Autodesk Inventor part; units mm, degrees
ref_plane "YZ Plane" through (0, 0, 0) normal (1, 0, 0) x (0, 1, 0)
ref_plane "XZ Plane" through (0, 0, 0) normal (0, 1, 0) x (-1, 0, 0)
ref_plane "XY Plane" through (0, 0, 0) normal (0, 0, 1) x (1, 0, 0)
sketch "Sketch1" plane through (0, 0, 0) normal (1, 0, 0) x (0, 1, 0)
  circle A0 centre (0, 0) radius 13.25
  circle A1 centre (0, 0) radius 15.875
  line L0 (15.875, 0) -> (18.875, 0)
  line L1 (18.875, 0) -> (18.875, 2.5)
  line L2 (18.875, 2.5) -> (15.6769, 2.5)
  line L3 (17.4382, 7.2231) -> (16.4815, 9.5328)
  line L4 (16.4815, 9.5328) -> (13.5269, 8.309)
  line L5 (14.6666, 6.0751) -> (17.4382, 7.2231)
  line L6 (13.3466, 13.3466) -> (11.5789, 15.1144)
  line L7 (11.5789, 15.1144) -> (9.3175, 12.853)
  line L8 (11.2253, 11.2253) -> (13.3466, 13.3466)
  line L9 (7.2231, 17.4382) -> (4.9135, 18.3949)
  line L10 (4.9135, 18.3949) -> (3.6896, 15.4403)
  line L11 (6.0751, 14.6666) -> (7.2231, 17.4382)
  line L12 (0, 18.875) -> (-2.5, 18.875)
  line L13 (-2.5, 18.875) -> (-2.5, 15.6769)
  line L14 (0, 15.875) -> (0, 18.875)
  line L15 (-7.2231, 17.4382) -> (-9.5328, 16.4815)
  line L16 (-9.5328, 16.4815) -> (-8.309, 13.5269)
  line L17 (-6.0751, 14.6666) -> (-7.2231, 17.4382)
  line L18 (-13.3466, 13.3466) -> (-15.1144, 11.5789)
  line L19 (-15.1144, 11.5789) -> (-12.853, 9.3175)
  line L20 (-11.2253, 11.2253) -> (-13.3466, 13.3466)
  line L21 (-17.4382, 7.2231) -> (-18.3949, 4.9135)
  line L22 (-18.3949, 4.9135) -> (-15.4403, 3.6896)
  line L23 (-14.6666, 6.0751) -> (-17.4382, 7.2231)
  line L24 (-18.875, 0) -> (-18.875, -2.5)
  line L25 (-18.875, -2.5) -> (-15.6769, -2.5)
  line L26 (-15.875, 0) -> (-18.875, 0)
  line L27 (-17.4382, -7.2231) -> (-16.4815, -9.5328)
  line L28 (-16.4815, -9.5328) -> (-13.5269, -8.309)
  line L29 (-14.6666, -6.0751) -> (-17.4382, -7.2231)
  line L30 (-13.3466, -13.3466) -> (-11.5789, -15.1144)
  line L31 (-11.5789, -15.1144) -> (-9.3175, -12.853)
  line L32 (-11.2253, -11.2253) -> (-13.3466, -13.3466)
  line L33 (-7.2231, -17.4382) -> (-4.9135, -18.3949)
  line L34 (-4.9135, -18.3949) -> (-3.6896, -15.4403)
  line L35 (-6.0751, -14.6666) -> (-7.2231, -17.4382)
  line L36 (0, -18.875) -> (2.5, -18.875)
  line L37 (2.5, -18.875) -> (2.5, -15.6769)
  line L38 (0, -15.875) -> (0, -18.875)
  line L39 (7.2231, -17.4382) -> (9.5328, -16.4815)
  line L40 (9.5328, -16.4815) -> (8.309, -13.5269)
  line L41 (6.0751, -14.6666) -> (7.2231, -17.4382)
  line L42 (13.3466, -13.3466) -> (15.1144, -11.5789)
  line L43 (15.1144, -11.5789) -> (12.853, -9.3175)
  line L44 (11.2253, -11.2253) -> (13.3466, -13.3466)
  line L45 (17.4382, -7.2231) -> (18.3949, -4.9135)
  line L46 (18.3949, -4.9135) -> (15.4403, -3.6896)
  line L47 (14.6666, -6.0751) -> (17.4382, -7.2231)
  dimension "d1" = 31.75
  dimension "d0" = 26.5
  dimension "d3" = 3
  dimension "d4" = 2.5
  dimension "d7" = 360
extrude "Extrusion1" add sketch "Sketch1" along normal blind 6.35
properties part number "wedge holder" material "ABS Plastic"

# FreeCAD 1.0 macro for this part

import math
import FreeCAD as App
import Part
import Sketcher
Q = App.Units.Quantity

doc = App.newDocument("Part")
body = doc.addObject("PartDesign::Body", "Body")

sketch1 = body.newObject("Sketcher::SketchObject", "Sketch")
sketch1.AttachmentSupport = (doc.getObject("YZ_Plane"), [""])
sketch1.MapMode = "FlatFace"
sketch1.addGeometry([
    Part.ArcOfCircle(Part.Circle(App.Vector(0, 0, 0), App.Vector(0, 0, 1), 15.9), math.radians(-13.44), math.radians(0)),
    Part.LineSegment(App.Vector(15.9, 0, 0), App.Vector(18.9, 0, 0)),
    Part.LineSegment(App.Vector(18.9, 0, 0), App.Vector(18.9, 2.5, 0)),
    Part.LineSegment(App.Vector(18.9, 2.5, 0), App.Vector(15.7, 2.5, 0)),
    Part.ArcOfCircle(Part.Circle(App.Vector(0, 0, 0), App.Vector(0, 0, 1), 15.9), math.radians(9.06), math.radians(22.5)),
    Part.LineSegment(App.Vector(14.7, 6.1, 0), App.Vector(17.4, 7.2, 0)),
    Part.LineSegment(App.Vector(17.4, 7.2, 0), App.Vector(16.5, 9.5, 0)),
    Part.LineSegment(App.Vector(16.5, 9.5, 0), App.Vector(13.5, 8.3, 0)),
    Part.ArcOfCircle(Part.Circle(App.Vector(0, 0, 0), App.Vector(0, 0, 1), 15.9), math.radians(31.56), math.radians(45)),
    Part.LineSegment(App.Vector(11.2, 11.2, 0), App.Vector(13.3, 13.3, 0)),
    Part.LineSegment(App.Vector(13.3, 13.3, 0), App.Vector(11.6, 15.1, 0)),
    Part.LineSegment(App.Vector(11.6, 15.1, 0), App.Vector(9.3, 12.9, 0)),
    Part.ArcOfCircle(Part.Circle(App.Vector(0, 0, 0), App.Vector(0, 0, 1), 15.9), math.radians(54.06), math.radians(67.5)),
    Part.LineSegment(App.Vector(6.1, 14.7, 0), App.Vector(7.2, 17.4, 0)),
    Part.LineSegment(App.Vector(7.2, 17.4, 0), App.Vector(4.9, 18.4, 0)),
    Part.LineSegment(App.Vector(4.9, 18.4, 0), App.Vector(3.7, 15.4, 0)),
    Part.ArcOfCircle(Part.Circle(App.Vector(0, 0, 0), App.Vector(0, 0, 1), 15.9), math.radians(76.56), math.radians(90)),
    Part.LineSegment(App.Vector(0, 15.9, 0), App.Vector(0, 18.9, 0)),
    Part.LineSegment(App.Vector(0, 18.9, 0), App.Vector(-2.5, 18.9, 0)),
    Part.LineSegment(App.Vector(-2.5, 18.9, 0), App.Vector(-2.5, 15.7, 0)),
    Part.ArcOfCircle(Part.Circle(App.Vector(0, 0, 0), App.Vector(0, 0, 1), 15.9), math.radians(99.06), math.radians(112.5)),
    Part.LineSegment(App.Vector(-6.1, 14.7, 0), App.Vector(-7.2, 17.4, 0)),
    Part.LineSegment(App.Vector(-7.2, 17.4, 0), App.Vector(-9.5, 16.5, 0)),
    Part.LineSegment(App.Vector(-9.5, 16.5, 0), App.Vector(-8.3, 13.5, 0)),
    Part.ArcOfCircle(Part.Circle(App.Vector(0, 0, 0), App.Vector(0, 0, 1), 15.9), math.radians(121.56), math.radians(135)),
    Part.LineSegment(App.Vector(-11.2, 11.2, 0), App.Vector(-13.3, 13.3, 0)),
    Part.LineSegment(App.Vector(-13.3, 13.3, 0), App.Vector(-15.1, 11.6, 0)),
    Part.LineSegment(App.Vector(-15.1, 11.6, 0), App.Vector(-12.9, 9.3, 0)),
    Part.ArcOfCircle(Part.Circle(App.Vector(0, 0, 0), App.Vector(0, 0, 1), 15.9), math.radians(144.06), math.radians(157.5)),
    Part.LineSegment(App.Vector(-14.7, 6.1, 0), App.Vector(-17.4, 7.2, 0)),
    Part.LineSegment(App.Vector(-17.4, 7.2, 0), App.Vector(-18.4, 4.9, 0)),
    Part.LineSegment(App.Vector(-18.4, 4.9, 0), App.Vector(-15.4, 3.7, 0)),
    Part.ArcOfCircle(Part.Circle(App.Vector(0, 0, 0), App.Vector(0, 0, 1), 15.9), math.radians(166.56), math.radians(180)),
    Part.LineSegment(App.Vector(-15.9, 0, 0), App.Vector(-18.9, 0, 0)),
    Part.LineSegment(App.Vector(-18.9, 0, 0), App.Vector(-18.9, -2.5, 0)),
    Part.LineSegment(App.Vector(-18.9, -2.5, 0), App.Vector(-15.7, -2.5, 0)),
    Part.ArcOfCircle(Part.Circle(App.Vector(0, 0, 0), App.Vector(0, 0, 1), 15.9), math.radians(-170.94), math.radians(-157.5)),
    Part.LineSegment(App.Vector(-14.7, -6.1, 0), App.Vector(-17.4, -7.2, 0)),
    Part.LineSegment(App.Vector(-17.4, -7.2, 0), App.Vector(-16.5, -9.5, 0)),
    Part.LineSegment(App.Vector(-16.5, -9.5, 0), App.Vector(-13.5, -8.3, 0)),
    Part.ArcOfCircle(Part.Circle(App.Vector(0, 0, 0), App.Vector(0, 0, 1), 15.9), math.radians(-148.44), math.radians(-135)),
    Part.LineSegment(App.Vector(-11.2, -11.2, 0), App.Vector(-13.3, -13.3, 0)),
    Part.LineSegment(App.Vector(-13.3, -13.3, 0), App.Vector(-11.6, -15.1, 0)),
    Part.LineSegment(App.Vector(-11.6, -15.1, 0), App.Vector(-9.3, -12.9, 0)),
    Part.ArcOfCircle(Part.Circle(App.Vector(0, 0, 0), App.Vector(0, 0, 1), 15.9), math.radians(-125.94), math.radians(-112.5)),
    Part.LineSegment(App.Vector(-6.1, -14.7, 0), App.Vector(-7.2, -17.4, 0)),
    Part.LineSegment(App.Vector(-7.2, -17.4, 0), App.Vector(-4.9, -18.4, 0)),
    Part.LineSegment(App.Vector(-4.9, -18.4, 0), App.Vector(-3.7, -15.4, 0)),
    Part.ArcOfCircle(Part.Circle(App.Vector(0, 0, 0), App.Vector(0, 0, 1), 15.9), math.radians(-103.44), math.radians(-90)),
    Part.LineSegment(App.Vector(0, -15.9, 0), App.Vector(0, -18.9, 0)),
    Part.LineSegment(App.Vector(0, -18.9, 0), App.Vector(2.5, -18.9, 0)),
    Part.LineSegment(App.Vector(2.5, -18.9, 0), App.Vector(2.5, -15.7, 0)),
    Part.ArcOfCircle(Part.Circle(App.Vector(0, 0, 0), App.Vector(0, 0, 1), 15.9), math.radians(-80.94), math.radians(-67.5)),
    Part.LineSegment(App.Vector(6.1, -14.7, 0), App.Vector(7.2, -17.4, 0)),
    Part.LineSegment(App.Vector(7.2, -17.4, 0), App.Vector(9.5, -16.5, 0)),
    Part.LineSegment(App.Vector(9.5, -16.5, 0), App.Vector(8.3, -13.5, 0)),
    Part.ArcOfCircle(Part.Circle(App.Vector(0, 0, 0), App.Vector(0, 0, 1), 15.9), math.radians(-58.44), math.radians(-45)),
    Part.LineSegment(App.Vector(11.2, -11.2, 0), App.Vector(13.3, -13.3, 0)),
    Part.LineSegment(App.Vector(13.3, -13.3, 0), App.Vector(15.1, -11.6, 0)),
    Part.LineSegment(App.Vector(15.1, -11.6, 0), App.Vector(12.9, -9.3, 0)),
    Part.ArcOfCircle(Part.Circle(App.Vector(0, 0, 0), App.Vector(0, 0, 1), 15.9), math.radians(-35.94), math.radians(-22.5)),
    Part.LineSegment(App.Vector(14.7, -6.1, 0), App.Vector(17.4, -7.2, 0)),
    Part.LineSegment(App.Vector(17.4, -7.2, 0), App.Vector(18.4, -4.9, 0)),
    Part.LineSegment(App.Vector(18.4, -4.9, 0), App.Vector(15.4, -3.7, 0)),
    Part.Circle(App.Vector(0, 0, 0), App.Vector(0, 0, 1), 13.2),
], False)
sketch1.addConstraint([
    Sketcher.Constraint("Coincident", 0, 2, 1, 1),
    Sketcher.Constraint("Coincident", 1, 2, 2, 1),
    Sketcher.Constraint("Coincident", 2, 2, 3, 1),
    Sketcher.Constraint("Coincident", 3, 2, 4, 1),
    Sketcher.Constraint("Coincident", 4, 2, 5, 1),
    Sketcher.Constraint("Coincident", 5, 2, 6, 1),
    Sketcher.Constraint("Coincident", 6, 2, 7, 1),
    Sketcher.Constraint("Coincident", 7, 2, 8, 1),
    Sketcher.Constraint("Coincident", 8, 2, 9, 1),
    Sketcher.Constraint("Coincident", 9, 2, 10, 1),
    Sketcher.Constraint("Coincident", 10, 2, 11, 1),
    Sketcher.Constraint("Coincident", 11, 2, 12, 1),
    Sketcher.Constraint("Coincident", 12, 2, 13, 1),
    Sketcher.Constraint("Coincident", 13, 2, 14, 1),
    Sketcher.Constraint("Coincident", 14, 2, 15, 1),
    Sketcher.Constraint("Coincident", 15, 2, 16, 1),
    Sketcher.Constraint("Coincident", 16, 2, 17, 1),
    Sketcher.Constraint("Coincident", 17, 2, 18, 1),
    Sketcher.Constraint("Coincident", 18, 2, 19, 1),
    Sketcher.Constraint("Coincident", 19, 2, 20, 1),
    Sketcher.Constraint("Coincident", 20, 2, 21, 1),
    Sketcher.Constraint("Coincident", 21, 2, 22, 1),
    Sketcher.Constraint("Coincident", 22, 2, 23, 1),
    Sketcher.Constraint("Coincident", 23, 2, 24, 1),
    Sketcher.Constraint("Coincident", 24, 2, 25, 1),
    Sketcher.Constraint("Coincident", 25, 2, 26, 1),
    Sketcher.Constraint("Coincident", 26, 2, 27, 1),
    Sketcher.Constraint("Coincident", 27, 2, 28, 1),
    Sketcher.Constraint("Coincident", 28, 2, 29, 1),
    Sketcher.Constraint("Coincident", 29, 2, 30, 1),
    Sketcher.Constraint("Coincident", 30, 2, 31, 1),
    Sketcher.Constraint("Coincident", 31, 2, 32, 1),
    Sketcher.Constraint("Coincident", 32, 2, 33, 1),
    Sketcher.Constraint("Coincident", 33, 2, 34, 1),
    Sketcher.Constraint("Coincident", 34, 2, 35, 1),
    Sketcher.Constraint("Coincident", 35, 2, 36, 1),
    Sketcher.Constraint("Coincident", 36, 2, 37, 1),
    Sketcher.Constraint("Coincident", 37, 2, 38, 1),
    Sketcher.Constraint("Coincident", 38, 2, 39, 1),
    Sketcher.Constraint("Coincident", 39, 2, 40, 1),
    Sketcher.Constraint("Coincident", 40, 2, 41, 1),
    Sketcher.Constraint("Coincident", 41, 2, 42, 1),
    Sketcher.Constraint("Coincident", 42, 2, 43, 1),
    Sketcher.Constraint("Coincident", 43, 2, 44, 1),
    Sketcher.Constraint("Coincident", 44, 2, 45, 1),
    Sketcher.Constraint("Coincident", 45, 2, 46, 1),
    Sketcher.Constraint("Coincident", 46, 2, 47, 1),
    Sketcher.Constraint("Coincident", 47, 2, 48, 1),
    Sketcher.Constraint("Coincident", 48, 2, 49, 1),
    Sketcher.Constraint("Coincident", 49, 2, 50, 1),
    Sketcher.Constraint("Coincident", 50, 2, 51, 1),
    Sketcher.Constraint("Coincident", 51, 2, 52, 1),
    Sketcher.Constraint("Coincident", 52, 2, 53, 1),
    Sketcher.Constraint("Coincident", 53, 2, 54, 1),
    Sketcher.Constraint("Coincident", 54, 2, 55, 1),
    Sketcher.Constraint("Coincident", 55, 2, 56, 1),
    Sketcher.Constraint("Coincident", 56, 2, 57, 1),
    Sketcher.Constraint("Coincident", 57, 2, 58, 1),
    Sketcher.Constraint("Coincident", 58, 2, 59, 1),
    Sketcher.Constraint("Coincident", 59, 2, 60, 1),
    Sketcher.Constraint("Coincident", 60, 2, 61, 1),
    Sketcher.Constraint("Coincident", 61, 2, 62, 1),
    Sketcher.Constraint("Coincident", 62, 2, 63, 1),
    Sketcher.Constraint("Coincident", 63, 2, 0, 1),
    Sketcher.Constraint("Horizontal", 1),
    Sketcher.Constraint("Vertical", 2),
    Sketcher.Constraint("Horizontal", 3),
    Sketcher.Constraint("Vertical", 17),
    Sketcher.Constraint("Horizontal", 18),
    Sketcher.Constraint("Vertical", 19),
    Sketcher.Constraint("Horizontal", 33),
    Sketcher.Constraint("Vertical", 34),
    Sketcher.Constraint("Horizontal", 35),
    Sketcher.Constraint("Vertical", 49),
    Sketcher.Constraint("Horizontal", 50),
    Sketcher.Constraint("Vertical", 51),
    Sketcher.Constraint("Coincident", 0, 3, -1, 1),
    Sketcher.Constraint("Coincident", 4, 3, -1, 1),
    Sketcher.Constraint("Coincident", 8, 3, -1, 1),
    Sketcher.Constraint("Coincident", 12, 3, -1, 1),
    Sketcher.Constraint("Coincident", 16, 3, -1, 1),
    Sketcher.Constraint("Coincident", 20, 3, -1, 1),
    Sketcher.Constraint("Coincident", 24, 3, -1, 1),
    Sketcher.Constraint("Coincident", 28, 3, -1, 1),
    Sketcher.Constraint("Coincident", 32, 3, -1, 1),
    Sketcher.Constraint("Coincident", 36, 3, -1, 1),
    Sketcher.Constraint("Coincident", 40, 3, -1, 1),
    Sketcher.Constraint("Coincident", 44, 3, -1, 1),
    Sketcher.Constraint("Coincident", 48, 3, -1, 1),
    Sketcher.Constraint("Coincident", 52, 3, -1, 1),
    Sketcher.Constraint("Coincident", 56, 3, -1, 1),
    Sketcher.Constraint("Coincident", 60, 3, -1, 1),
    Sketcher.Constraint("Coincident", 64, 3, -1, 1),
    Sketcher.Constraint("Equal", 0, 4),
    Sketcher.Constraint("Equal", 4, 8),
    Sketcher.Constraint("Equal", 8, 12),
    Sketcher.Constraint("Equal", 12, 16),
    Sketcher.Constraint("Equal", 16, 20),
    Sketcher.Constraint("Equal", 20, 24),
    Sketcher.Constraint("Equal", 24, 28),
    Sketcher.Constraint("Equal", 28, 32),
    Sketcher.Constraint("Equal", 32, 36),
    Sketcher.Constraint("Equal", 36, 40),
    Sketcher.Constraint("Equal", 40, 44),
    Sketcher.Constraint("Equal", 44, 48),
    Sketcher.Constraint("Equal", 48, 52),
    Sketcher.Constraint("Equal", 52, 56),
    Sketcher.Constraint("Equal", 56, 60),
    Sketcher.Constraint("Symmetric", 1, 2, 33, 2, -1, 1),
    Sketcher.Constraint("Symmetric", 5, 2, 37, 2, -1, 1),
    Sketcher.Constraint("Symmetric", 6, 2, 38, 2, -1, 1),
    Sketcher.Constraint("Symmetric", 9, 2, 41, 2, -1, 1),
    Sketcher.Constraint("Symmetric", 10, 2, 42, 2, -1, 1),
    Sketcher.Constraint("Symmetric", 13, 2, 45, 2, -1, 1),
    Sketcher.Constraint("Symmetric", 14, 2, 46, 2, -1, 1),
    Sketcher.Constraint("Symmetric", 17, 2, 49, 2, -1, 1),
    Sketcher.Constraint("Symmetric", 21, 2, 53, 2, -1, 1),
    Sketcher.Constraint("Symmetric", 22, 2, 54, 2, -1, 1),
    Sketcher.Constraint("Symmetric", 25, 2, 57, 2, -1, 1),
    Sketcher.Constraint("Symmetric", 26, 2, 58, 2, -1, 1),
    Sketcher.Constraint("Symmetric", 29, 2, 61, 2, -1, 1),
    Sketcher.Constraint("Symmetric", 30, 2, 62, 2, -1, 1),
    Sketcher.Constraint("Symmetric", 13, 2, 21, 2, -2),
    Sketcher.Constraint("Symmetric", 9, 2, 25, 2, -2),
    Sketcher.Constraint("Symmetric", 5, 2, 29, 2, -2),
    Sketcher.Constraint("PointOnObject", 0, 2, -1),
    Sketcher.Constraint("PointOnObject", 16, 2, -2),
    Sketcher.Constraint("Perpendicular", 5, 6),
    Sketcher.Constraint("Perpendicular", 6, 7),
    Sketcher.Constraint("Perpendicular", 9, 10),
    Sketcher.Constraint("Perpendicular", 10, 11),
    Sketcher.Constraint("Perpendicular", 13, 14),
    Sketcher.Constraint("Perpendicular", 14, 15),
    Sketcher.Constraint("Perpendicular", 7, 21),
    Sketcher.Constraint("Perpendicular", 21, 22),
    Sketcher.Constraint("Perpendicular", 22, 23),
    Sketcher.Constraint("Perpendicular", 11, 25),
    Sketcher.Constraint("Perpendicular", 25, 26),
    Sketcher.Constraint("Perpendicular", 26, 27),
    Sketcher.Constraint("Perpendicular", 15, 29),
    Sketcher.Constraint("Perpendicular", 29, 30),
    Sketcher.Constraint("Perpendicular", 30, 31),
    Sketcher.Constraint("Perpendicular", 23, 37),
    Sketcher.Constraint("Perpendicular", 38, 39),
    Sketcher.Constraint("Perpendicular", 27, 41),
    Sketcher.Constraint("Perpendicular", 42, 43),
    Sketcher.Constraint("Perpendicular", 31, 45),
    Sketcher.Constraint("Perpendicular", 46, 47),
    Sketcher.Constraint("Perpendicular", 39, 53),
    Sketcher.Constraint("Perpendicular", 54, 55),
    Sketcher.Constraint("Perpendicular", 43, 57),
    Sketcher.Constraint("Perpendicular", 58, 59),
    Sketcher.Constraint("Perpendicular", 47, 61),
    Sketcher.Constraint("Perpendicular", 62, 63),
    Sketcher.Constraint("Horizontal", 12, 2, 20, 2),
    Sketcher.Constraint("Horizontal", 8, 2, 24, 2),
    Sketcher.Constraint("Equal", 3, 35),
    Sketcher.Constraint("Equal", 18, 50),
    Sketcher.Constraint("Equal", 50, 2),
    Sketcher.Constraint("Equal", 33, 17),
    Sketcher.Constraint("Equal", 5, 9),
    Sketcher.Constraint("Equal", 6, 10),
    Sketcher.Constraint("Equal", 7, 11),
    Sketcher.Constraint("Equal", 9, 13),
    Sketcher.Constraint("Equal", 10, 14),
    Sketcher.Constraint("Equal", 11, 15),
    Sketcher.Constraint("Equal", 14, 22),
    Sketcher.Constraint("Equal", 15, 23),
    Sketcher.Constraint("Equal", 22, 26),
    Sketcher.Constraint("Equal", 26, 30),
    Sketcher.Constraint("Diameter", 64, 26.5),
    Sketcher.Constraint("DistanceX", 1, 1, 1, 2, 3.0),
    Sketcher.Constraint("Distance", 5, 3.0),
    Sketcher.Constraint("DistanceX", 18, 2, 18, 1, 2.5),
    Sketcher.Constraint("Radius", 0, 15.875),
    Sketcher.Constraint("Distance", 6, 2.5),
    Sketcher.Constraint("Angle", 5, Q("22.4994 deg")),
])
pad1 = body.newObject("PartDesign::Pad", "Pad")
pad1.Profile = sketch1
pad1.Length = 6.35

doc.recompute()
